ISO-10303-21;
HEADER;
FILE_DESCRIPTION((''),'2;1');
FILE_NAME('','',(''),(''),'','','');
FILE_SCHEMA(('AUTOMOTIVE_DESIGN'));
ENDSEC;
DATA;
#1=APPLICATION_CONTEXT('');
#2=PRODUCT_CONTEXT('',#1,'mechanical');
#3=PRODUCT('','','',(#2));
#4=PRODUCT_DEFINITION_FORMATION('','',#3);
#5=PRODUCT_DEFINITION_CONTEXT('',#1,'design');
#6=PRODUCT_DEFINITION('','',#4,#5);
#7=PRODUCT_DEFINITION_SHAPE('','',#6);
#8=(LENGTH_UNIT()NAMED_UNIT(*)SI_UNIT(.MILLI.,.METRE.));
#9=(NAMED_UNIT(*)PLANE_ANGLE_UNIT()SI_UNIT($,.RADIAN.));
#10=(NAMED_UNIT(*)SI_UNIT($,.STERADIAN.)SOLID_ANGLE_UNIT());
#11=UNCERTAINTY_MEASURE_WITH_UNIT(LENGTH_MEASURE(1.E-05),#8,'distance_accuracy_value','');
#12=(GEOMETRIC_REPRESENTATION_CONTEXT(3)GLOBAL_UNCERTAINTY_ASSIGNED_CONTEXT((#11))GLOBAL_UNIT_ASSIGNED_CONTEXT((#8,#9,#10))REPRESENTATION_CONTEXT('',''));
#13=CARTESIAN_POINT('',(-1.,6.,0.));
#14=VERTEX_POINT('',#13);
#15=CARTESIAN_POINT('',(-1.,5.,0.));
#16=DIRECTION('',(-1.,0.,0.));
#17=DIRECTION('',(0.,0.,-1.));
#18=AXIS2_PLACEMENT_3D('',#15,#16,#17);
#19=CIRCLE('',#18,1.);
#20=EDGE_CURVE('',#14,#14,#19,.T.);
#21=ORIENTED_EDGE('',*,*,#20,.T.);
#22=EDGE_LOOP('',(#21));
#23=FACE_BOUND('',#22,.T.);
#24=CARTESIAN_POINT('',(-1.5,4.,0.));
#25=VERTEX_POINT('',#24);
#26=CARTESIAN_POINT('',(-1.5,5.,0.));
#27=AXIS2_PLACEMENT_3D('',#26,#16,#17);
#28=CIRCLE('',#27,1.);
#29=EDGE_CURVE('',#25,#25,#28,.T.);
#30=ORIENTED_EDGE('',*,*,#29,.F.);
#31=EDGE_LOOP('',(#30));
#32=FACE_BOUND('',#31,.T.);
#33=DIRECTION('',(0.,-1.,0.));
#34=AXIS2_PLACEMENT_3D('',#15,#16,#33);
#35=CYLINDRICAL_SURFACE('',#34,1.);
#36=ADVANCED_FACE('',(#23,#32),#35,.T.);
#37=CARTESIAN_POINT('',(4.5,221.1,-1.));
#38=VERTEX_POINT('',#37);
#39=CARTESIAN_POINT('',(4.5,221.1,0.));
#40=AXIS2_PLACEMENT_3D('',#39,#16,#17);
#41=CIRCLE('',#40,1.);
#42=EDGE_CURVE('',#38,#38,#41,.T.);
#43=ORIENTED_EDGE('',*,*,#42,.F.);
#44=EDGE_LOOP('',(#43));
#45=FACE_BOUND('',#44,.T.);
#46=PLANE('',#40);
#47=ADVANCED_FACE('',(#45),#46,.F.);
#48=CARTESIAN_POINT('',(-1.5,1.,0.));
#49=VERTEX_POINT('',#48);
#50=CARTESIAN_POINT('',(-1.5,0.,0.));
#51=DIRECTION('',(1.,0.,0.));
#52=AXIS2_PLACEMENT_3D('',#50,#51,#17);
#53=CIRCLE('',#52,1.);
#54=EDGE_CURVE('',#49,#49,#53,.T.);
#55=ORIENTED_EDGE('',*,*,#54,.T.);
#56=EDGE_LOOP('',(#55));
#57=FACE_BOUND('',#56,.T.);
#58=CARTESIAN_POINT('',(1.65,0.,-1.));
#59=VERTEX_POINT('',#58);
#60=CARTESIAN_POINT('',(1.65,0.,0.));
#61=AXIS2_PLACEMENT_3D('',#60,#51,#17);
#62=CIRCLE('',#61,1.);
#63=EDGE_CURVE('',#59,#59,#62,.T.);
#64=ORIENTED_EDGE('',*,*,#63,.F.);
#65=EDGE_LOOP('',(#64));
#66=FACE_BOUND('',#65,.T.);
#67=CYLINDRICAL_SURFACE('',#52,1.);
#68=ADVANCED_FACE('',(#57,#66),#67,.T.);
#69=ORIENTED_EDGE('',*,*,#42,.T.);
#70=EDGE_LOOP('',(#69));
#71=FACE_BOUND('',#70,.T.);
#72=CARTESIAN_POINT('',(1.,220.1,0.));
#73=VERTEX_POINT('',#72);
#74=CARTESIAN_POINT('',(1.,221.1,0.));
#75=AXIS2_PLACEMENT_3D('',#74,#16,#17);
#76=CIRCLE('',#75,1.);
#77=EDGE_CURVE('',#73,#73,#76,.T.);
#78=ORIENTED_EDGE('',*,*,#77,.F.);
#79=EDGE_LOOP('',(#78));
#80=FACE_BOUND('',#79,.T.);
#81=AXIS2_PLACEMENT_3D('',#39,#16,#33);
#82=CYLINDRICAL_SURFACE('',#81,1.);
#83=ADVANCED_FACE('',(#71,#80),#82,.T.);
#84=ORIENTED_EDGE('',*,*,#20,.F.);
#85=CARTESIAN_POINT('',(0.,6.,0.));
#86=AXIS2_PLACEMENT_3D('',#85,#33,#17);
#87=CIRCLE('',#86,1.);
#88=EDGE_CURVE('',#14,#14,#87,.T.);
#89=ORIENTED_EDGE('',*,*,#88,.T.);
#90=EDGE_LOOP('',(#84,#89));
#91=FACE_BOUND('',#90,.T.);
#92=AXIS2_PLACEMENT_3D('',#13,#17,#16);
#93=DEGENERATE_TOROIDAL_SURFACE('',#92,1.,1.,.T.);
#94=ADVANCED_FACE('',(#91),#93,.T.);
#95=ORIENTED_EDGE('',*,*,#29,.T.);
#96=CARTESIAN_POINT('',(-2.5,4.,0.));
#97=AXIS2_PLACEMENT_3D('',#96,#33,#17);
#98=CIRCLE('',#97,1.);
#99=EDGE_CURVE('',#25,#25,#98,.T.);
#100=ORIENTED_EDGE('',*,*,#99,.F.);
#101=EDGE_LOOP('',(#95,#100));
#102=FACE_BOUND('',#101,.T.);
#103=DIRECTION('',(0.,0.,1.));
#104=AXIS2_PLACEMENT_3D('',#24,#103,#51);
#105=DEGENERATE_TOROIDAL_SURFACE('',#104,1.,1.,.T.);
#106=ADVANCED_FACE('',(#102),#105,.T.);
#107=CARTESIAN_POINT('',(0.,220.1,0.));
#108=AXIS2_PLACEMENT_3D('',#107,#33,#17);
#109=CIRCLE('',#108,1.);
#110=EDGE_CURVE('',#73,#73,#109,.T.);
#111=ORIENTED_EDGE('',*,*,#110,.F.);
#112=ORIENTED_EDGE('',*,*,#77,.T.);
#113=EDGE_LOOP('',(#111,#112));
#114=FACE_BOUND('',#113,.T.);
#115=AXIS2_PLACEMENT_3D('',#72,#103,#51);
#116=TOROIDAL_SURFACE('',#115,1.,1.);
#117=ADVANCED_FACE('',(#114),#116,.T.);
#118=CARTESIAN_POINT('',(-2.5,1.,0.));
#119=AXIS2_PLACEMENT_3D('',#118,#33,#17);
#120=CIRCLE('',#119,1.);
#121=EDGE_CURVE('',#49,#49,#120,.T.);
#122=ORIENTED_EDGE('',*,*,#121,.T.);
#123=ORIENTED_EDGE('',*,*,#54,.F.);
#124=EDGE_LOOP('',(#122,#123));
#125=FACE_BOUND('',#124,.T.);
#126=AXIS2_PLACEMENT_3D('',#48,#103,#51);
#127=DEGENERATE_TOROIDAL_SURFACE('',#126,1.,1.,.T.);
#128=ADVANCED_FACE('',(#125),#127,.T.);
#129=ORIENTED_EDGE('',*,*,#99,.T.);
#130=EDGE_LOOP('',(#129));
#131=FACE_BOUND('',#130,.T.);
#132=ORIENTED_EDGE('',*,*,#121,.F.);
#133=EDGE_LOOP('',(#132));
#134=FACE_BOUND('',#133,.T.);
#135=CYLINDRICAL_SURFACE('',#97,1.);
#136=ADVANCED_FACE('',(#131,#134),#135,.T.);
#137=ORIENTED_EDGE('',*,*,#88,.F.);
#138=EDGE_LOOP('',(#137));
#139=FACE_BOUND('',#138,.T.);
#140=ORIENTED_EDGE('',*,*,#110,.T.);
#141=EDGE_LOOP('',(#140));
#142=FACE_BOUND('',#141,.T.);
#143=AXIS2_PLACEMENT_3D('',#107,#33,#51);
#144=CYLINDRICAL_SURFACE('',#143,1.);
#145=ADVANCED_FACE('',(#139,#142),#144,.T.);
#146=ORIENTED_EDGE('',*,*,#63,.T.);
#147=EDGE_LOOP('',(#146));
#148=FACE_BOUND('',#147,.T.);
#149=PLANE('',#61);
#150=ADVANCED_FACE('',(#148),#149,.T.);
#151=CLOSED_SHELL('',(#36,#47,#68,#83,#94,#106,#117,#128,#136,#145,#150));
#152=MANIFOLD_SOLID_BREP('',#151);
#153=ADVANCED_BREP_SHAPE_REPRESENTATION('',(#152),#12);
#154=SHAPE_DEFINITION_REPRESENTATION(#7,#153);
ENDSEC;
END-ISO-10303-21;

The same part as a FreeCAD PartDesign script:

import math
import FreeCAD as App
import Part
import Sketcher

V = App.Vector

doc = App.newDocument("Part")
body = doc.addObject("PartDesign::Body", "Body")

sketch1 = body.newObject("Sketcher::SketchObject", "Sketch")
sketch1.AttachmentSupport = (doc.getObject("YZ_Plane"), [""])
sketch1.MapMode = "FlatFace"
sketch1.AttachmentOffset = App.Placement(V(0, 0, 1.65), App.Rotation())
sketch1.addGeometry(Part.Circle(V(0, 0, 0), V(0, 0, 1), 1), False)
sketch1.addConstraint(Sketcher.Constraint("Coincident", 0, 3, -1, 1))
sketch1.addConstraint(Sketcher.Constraint("Diameter", 0, 2.0))

sketch2 = body.newObject("Sketcher::SketchObject", "Sketch001")
sketch2.AttachmentSupport = (doc.getObject("XY_Plane"), [""])
sketch2.MapMode = "FlatFace"
sketch2.addGeometry(Part.LineSegment(V(4.5, 221.1, 0), V(1, 221.1, 0)), False)
sketch2.addGeometry(Part.ArcOfCircle(Part.Circle(V(1, 220.1, 0), V(0, 0, 1), 1), math.radians(90), math.radians(180)), False)
sketch2.addGeometry(Part.LineSegment(V(0, 220.1, 0), V(0, 6, 0)), False)
sketch2.addGeometry(Part.ArcOfCircle(Part.Circle(V(-1, 6, 0), V(0, 0, 1), 1), math.radians(-90), math.radians(0)), False)
sketch2.addGeometry(Part.LineSegment(V(-1, 5, 0), V(-1.5, 5, 0)), False)
sketch2.addGeometry(Part.ArcOfCircle(Part.Circle(V(-1.5, 4, 0), V(0, 0, 1), 1), math.radians(90), math.radians(180)), False)
sketch2.addGeometry(Part.LineSegment(V(-2.5, 4, 0), V(-2.5, 1, 0)), False)
sketch2.addGeometry(Part.ArcOfCircle(Part.Circle(V(-1.5, 1, 0), V(0, 0, 1), 1), math.radians(-180), math.radians(-90)), False)
sketch2.addGeometry(Part.LineSegment(V(-1.5, 0, 0), V(1.6, 0, 0)), False)
sketch2.addConstraint(Sketcher.Constraint("Tangent", 0, 2, 1, 1))
sketch2.addConstraint(Sketcher.Constraint("Tangent", 1, 2, 2, 1))
sketch2.addConstraint(Sketcher.Constraint("Tangent", 2, 2, 3, 2))
sketch2.addConstraint(Sketcher.Constraint("Tangent", 3, 1, 4, 1))
sketch2.addConstraint(Sketcher.Constraint("Tangent", 4, 2, 5, 1))
sketch2.addConstraint(Sketcher.Constraint("Tangent", 5, 2, 6, 1))
sketch2.addConstraint(Sketcher.Constraint("Tangent", 6, 2, 7, 1))
sketch2.addConstraint(Sketcher.Constraint("Tangent", 7, 2, 8, 1))
sketch2.addConstraint(Sketcher.Constraint("Horizontal", 0))
sketch2.addConstraint(Sketcher.Constraint("Vertical", 2))
sketch2.addConstraint(Sketcher.Constraint("Horizontal", 4))
sketch2.addConstraint(Sketcher.Constraint("Vertical", 6))
sketch2.addConstraint(Sketcher.Constraint("Horizontal", 8))
sketch2.addConstraint(Sketcher.Constraint("Equal", 1, 3))
sketch2.addConstraint(Sketcher.Constraint("Equal", 3, 5))
sketch2.addConstraint(Sketcher.Constraint("Equal", 5, 7))
sketch2.addConstraint(Sketcher.Constraint("PointOnObject", 1, 2, -2))
sketch2.addConstraint(Sketcher.Constraint("PointOnObject", 7, 2, -1))
sketch2.addConstraint(Sketcher.Constraint("Radius", 1, 1.0))
sketch2.addConstraint(Sketcher.Constraint("DistanceY", 6, 2, 6, 1, 3.0))
sketch2.addConstraint(Sketcher.Constraint("DistanceX", 0, 2, 0, 1, 3.5))
sketch2.addConstraint(Sketcher.Constraint("DistanceX", 4, 2, 4, 1, 0.5))
sketch2.addConstraint(Sketcher.Constraint("DistanceY", 2, 2, 2, 1, 214.1))
sketch2.addConstraint(Sketcher.Constraint("DistanceX", 8, 1, 8, 2, 3.15))
doc.recompute()

additivepipe = body.newObject("PartDesign::AdditivePipe", "AdditivePipe")
additivepipe.Profile = sketch1
additivepipe.Spine = (sketch2, ["Edge1", "Edge2", "Edge3", "Edge4", "Edge5", "Edge6", "Edge7", "Edge8", "Edge9"])

doc.recompute()
